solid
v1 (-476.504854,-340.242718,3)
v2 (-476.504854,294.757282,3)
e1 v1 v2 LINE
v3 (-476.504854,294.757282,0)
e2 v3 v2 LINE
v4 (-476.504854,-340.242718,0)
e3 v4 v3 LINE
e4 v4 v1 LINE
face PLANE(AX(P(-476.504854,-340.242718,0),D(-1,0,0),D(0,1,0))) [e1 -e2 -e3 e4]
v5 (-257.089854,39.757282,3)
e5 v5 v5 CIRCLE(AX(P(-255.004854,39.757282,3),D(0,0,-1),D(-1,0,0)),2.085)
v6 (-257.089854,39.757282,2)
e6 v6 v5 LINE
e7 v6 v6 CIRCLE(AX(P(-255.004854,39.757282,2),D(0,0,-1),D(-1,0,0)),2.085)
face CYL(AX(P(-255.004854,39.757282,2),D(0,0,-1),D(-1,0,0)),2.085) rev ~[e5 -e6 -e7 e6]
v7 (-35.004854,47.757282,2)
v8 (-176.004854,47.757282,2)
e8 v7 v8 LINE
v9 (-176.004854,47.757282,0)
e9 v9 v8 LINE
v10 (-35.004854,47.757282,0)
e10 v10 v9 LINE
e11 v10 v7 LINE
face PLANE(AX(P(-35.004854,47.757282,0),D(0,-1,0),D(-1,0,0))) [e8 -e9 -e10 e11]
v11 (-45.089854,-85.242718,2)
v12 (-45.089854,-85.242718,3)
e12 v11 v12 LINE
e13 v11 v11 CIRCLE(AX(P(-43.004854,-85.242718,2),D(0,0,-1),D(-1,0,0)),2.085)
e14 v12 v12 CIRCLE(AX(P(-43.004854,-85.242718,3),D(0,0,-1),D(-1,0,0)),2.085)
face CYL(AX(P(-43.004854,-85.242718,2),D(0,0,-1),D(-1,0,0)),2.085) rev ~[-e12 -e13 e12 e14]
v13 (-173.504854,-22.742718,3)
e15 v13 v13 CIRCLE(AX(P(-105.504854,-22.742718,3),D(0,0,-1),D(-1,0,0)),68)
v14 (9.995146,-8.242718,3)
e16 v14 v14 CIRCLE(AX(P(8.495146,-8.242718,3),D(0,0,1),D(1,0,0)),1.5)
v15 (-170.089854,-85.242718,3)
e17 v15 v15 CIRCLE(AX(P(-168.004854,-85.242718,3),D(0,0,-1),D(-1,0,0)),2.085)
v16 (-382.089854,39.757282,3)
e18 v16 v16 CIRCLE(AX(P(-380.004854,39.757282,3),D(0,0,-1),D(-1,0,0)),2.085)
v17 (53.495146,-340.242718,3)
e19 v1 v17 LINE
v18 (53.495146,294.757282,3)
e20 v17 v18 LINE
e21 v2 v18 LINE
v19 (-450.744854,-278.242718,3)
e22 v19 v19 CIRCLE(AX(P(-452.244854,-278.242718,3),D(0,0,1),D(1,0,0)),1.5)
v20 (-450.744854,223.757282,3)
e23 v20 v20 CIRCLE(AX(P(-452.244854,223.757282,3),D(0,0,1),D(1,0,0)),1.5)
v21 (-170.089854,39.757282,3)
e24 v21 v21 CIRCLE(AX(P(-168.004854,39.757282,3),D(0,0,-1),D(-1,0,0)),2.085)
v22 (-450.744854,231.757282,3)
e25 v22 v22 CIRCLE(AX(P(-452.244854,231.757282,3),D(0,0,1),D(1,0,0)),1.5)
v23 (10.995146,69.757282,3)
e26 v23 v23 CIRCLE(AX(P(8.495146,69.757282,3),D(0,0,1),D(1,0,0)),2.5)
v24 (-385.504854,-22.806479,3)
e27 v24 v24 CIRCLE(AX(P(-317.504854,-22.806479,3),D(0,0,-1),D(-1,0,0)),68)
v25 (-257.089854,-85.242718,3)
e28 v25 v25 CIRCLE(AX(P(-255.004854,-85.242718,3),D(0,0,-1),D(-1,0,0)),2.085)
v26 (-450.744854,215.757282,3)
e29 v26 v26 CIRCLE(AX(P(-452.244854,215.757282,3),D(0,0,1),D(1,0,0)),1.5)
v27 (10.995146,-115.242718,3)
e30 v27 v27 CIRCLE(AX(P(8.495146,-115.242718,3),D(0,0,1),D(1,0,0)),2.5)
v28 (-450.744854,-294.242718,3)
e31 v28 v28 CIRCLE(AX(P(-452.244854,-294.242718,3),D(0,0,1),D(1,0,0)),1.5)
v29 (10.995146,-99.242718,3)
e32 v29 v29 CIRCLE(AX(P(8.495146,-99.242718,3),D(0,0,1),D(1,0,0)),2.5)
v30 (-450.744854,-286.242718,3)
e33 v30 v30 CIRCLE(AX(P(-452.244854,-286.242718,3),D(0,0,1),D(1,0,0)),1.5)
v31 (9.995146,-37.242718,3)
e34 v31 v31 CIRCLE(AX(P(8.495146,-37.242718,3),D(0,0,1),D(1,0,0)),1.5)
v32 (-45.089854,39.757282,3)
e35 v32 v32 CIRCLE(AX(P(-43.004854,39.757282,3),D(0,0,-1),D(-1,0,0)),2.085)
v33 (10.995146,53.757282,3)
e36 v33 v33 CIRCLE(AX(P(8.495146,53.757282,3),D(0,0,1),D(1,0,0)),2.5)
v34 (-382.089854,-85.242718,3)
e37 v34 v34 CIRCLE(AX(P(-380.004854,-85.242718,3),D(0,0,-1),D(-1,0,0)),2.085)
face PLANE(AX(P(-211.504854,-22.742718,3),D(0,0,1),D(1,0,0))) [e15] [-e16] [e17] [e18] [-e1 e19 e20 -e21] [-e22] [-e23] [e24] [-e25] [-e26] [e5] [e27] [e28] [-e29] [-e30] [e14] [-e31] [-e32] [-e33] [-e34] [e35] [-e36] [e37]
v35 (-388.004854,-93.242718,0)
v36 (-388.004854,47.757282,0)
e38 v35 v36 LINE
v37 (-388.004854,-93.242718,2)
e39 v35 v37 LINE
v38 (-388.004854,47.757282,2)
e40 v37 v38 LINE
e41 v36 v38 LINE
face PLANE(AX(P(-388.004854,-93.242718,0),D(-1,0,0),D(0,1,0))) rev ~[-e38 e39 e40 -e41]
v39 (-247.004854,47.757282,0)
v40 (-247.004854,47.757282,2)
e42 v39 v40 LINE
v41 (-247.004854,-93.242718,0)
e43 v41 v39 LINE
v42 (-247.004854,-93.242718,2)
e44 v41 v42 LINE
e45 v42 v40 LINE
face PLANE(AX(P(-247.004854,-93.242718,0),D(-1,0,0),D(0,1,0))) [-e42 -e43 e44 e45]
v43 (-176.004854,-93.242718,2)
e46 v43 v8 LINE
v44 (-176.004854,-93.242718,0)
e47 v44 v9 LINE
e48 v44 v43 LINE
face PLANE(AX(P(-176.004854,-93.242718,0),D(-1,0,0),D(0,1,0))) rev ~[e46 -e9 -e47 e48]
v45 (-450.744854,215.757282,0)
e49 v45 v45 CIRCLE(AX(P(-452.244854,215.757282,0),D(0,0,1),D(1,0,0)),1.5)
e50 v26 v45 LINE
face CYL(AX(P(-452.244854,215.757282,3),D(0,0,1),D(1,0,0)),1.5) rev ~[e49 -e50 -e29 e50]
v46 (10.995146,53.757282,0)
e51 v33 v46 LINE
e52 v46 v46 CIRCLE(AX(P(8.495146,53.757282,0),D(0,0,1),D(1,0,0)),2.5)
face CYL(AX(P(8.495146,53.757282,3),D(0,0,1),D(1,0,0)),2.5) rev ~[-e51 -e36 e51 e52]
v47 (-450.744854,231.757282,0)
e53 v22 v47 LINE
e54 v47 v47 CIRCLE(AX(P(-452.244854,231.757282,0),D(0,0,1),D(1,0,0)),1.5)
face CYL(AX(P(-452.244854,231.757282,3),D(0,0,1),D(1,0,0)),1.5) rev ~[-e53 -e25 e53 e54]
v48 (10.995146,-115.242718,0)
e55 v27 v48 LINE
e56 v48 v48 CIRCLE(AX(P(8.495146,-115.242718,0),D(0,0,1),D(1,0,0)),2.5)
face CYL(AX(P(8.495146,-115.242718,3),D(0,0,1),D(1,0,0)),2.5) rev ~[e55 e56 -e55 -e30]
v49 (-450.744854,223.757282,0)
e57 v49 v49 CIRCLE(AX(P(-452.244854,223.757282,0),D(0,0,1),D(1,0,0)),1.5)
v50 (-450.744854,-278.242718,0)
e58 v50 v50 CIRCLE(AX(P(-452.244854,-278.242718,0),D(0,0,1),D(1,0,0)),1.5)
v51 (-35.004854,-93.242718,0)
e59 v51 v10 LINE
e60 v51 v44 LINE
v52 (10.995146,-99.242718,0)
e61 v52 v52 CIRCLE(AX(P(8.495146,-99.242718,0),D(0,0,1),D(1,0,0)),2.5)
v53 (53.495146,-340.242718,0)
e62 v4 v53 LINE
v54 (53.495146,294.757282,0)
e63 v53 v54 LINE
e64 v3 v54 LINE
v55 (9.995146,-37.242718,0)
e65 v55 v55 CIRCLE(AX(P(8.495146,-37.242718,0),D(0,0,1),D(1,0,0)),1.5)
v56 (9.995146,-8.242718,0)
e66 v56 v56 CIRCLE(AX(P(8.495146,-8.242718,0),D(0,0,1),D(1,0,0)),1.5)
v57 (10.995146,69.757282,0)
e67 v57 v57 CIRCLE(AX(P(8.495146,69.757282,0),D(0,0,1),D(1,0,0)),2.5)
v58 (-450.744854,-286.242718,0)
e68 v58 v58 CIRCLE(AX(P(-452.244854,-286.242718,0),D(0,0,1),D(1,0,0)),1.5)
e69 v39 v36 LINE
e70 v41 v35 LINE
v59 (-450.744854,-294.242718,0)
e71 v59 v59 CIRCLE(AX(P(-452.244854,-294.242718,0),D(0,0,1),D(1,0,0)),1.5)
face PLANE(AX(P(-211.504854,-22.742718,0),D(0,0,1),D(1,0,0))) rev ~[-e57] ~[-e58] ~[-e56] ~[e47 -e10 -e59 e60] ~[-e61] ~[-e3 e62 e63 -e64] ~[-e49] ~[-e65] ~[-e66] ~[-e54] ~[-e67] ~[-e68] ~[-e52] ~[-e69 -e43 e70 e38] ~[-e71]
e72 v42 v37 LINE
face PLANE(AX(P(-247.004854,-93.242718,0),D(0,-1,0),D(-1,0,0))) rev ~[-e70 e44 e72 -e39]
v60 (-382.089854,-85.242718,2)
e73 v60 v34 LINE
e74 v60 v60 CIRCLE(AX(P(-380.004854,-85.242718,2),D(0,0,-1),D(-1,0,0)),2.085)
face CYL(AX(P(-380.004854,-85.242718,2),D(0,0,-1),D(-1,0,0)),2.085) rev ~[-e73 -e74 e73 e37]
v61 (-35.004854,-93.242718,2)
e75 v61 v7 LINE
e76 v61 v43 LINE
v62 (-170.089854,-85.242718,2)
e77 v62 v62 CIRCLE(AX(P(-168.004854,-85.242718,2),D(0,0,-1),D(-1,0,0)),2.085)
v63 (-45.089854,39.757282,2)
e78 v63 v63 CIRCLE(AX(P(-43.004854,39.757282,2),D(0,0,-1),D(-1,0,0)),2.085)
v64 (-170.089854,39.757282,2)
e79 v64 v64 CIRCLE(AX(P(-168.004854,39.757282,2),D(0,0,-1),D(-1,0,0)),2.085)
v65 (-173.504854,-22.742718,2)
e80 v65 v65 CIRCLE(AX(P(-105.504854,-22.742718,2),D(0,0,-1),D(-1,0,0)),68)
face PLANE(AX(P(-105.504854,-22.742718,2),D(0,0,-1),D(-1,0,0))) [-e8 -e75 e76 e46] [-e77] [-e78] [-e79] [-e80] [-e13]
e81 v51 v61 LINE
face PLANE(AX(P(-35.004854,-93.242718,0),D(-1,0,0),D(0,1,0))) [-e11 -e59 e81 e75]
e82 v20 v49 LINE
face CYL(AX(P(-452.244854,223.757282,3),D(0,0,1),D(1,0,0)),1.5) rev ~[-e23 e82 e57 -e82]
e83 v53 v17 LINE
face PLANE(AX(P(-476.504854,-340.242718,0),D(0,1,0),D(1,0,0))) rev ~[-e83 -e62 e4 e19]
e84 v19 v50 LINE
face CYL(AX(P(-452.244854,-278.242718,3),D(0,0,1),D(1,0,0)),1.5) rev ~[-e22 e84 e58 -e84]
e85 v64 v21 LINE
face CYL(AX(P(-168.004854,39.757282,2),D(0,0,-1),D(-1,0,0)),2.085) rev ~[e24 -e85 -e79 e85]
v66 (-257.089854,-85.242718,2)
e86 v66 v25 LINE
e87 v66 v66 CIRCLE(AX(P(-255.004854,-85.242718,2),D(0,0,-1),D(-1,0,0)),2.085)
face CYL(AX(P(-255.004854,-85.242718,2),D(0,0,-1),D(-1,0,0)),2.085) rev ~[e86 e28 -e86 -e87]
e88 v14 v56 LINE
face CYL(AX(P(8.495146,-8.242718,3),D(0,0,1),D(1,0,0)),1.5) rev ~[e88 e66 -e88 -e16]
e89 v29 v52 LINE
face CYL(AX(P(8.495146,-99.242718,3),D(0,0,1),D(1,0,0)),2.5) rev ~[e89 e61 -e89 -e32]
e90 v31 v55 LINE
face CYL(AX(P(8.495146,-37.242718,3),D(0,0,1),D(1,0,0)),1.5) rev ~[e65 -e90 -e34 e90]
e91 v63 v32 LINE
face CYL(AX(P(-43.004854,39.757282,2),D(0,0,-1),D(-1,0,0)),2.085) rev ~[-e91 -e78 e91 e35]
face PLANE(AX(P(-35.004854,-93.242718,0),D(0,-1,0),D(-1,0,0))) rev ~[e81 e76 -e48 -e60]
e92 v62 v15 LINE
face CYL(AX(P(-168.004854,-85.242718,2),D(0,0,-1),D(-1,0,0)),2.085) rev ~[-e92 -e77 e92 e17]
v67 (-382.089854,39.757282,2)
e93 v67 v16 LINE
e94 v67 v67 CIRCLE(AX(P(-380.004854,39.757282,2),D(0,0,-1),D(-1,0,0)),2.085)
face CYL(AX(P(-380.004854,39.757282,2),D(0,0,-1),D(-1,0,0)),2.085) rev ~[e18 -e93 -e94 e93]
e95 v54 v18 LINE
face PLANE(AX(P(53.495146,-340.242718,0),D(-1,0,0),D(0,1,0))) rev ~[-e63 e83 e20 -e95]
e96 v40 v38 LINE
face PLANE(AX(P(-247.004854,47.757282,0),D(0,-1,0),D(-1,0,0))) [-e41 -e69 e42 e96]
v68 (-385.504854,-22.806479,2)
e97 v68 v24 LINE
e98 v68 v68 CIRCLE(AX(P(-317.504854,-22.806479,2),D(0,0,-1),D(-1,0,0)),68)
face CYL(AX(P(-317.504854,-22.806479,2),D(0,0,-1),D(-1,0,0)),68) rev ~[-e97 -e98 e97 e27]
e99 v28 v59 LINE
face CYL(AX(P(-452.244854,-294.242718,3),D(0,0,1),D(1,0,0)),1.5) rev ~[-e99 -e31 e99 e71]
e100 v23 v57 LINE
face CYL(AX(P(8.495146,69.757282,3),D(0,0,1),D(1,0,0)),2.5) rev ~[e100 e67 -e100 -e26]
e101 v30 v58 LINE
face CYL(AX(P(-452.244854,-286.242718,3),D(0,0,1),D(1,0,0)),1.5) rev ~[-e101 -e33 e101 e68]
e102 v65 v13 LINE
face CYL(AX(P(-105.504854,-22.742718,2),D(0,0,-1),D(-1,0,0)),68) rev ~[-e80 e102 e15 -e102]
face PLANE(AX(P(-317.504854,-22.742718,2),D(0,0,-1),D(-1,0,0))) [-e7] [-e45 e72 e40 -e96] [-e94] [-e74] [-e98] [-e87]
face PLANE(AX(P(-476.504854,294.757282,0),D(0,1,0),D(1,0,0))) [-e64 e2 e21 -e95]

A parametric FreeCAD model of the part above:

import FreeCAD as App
import Part
import Sketcher

V = App.Vector
Q = App.Units.Quantity

doc = App.newDocument("Part")
body = doc.addObject("PartDesign::Body", "Body")

# Sketch on XY plane
sketch1 = body.newObject("Sketcher::SketchObject", "Sketch")
sketch1.AttachmentSupport = (doc.getObject("XY_Plane"), [""])
sketch1.MapMode = "FlatFace"
sketch1.addGeometry([
    Part.LineSegment(V(-476.504854, 294.757282, 0), V(-476.504854, -340.242718, 0)),
    Part.LineSegment(V(-476.504854, -340.242718, 0), V(53.495146, -340.242718, 0)),
    Part.LineSegment(V(53.495146, -340.242718, 0), V(53.495146, 294.757282, 0)),
    Part.LineSegment(V(53.495146, 294.757282, 0), V(-476.504854, 294.757282, 0)),
], False)
sketch1.addConstraint([
    Sketcher.Constraint("Coincident", 0, 2, 1, 1),
    Sketcher.Constraint("Coincident", 1, 2, 2, 1),
    Sketcher.Constraint("Coincident", 2, 2, 3, 1),
    Sketcher.Constraint("Coincident", 3, 2, 0, 1),
    Sketcher.Constraint("Vertical", 0),
    Sketcher.Constraint("Horizontal", 1),
    Sketcher.Constraint("Vertical", 2),
    Sketcher.Constraint("Horizontal", 3),
    Sketcher.Constraint("DistanceX", 1, 1, 1, 2, Q("530 mm")),
    Sketcher.Constraint("DistanceY", 0, 2, 0, 1, Q("635 mm")),
    Sketcher.Constraint("DistanceY", 0, 2, -1, 1, Q("340.242718 mm")),
    Sketcher.Constraint("DistanceX", 0, 2, -1, 1, Q("476.504854 mm")),
])
pad1 = body.newObject("PartDesign::Pad", "Pad")
pad1.Profile = sketch1
pad1.Length = 3

# Sketch on XY plane
sketch2 = body.newObject("Sketcher::SketchObject", "Sketch001")
sketch2.AttachmentSupport = (doc.getObject("XY_Plane"), [""])
sketch2.MapMode = "FlatFace"
sketch2.AttachmentOffset = App.Placement(V(0, 0, 3), App.Rotation())
sketch2.addGeometry([
    Part.Circle(V(-452.244854, 231.757282, 0), V(0, 0, 1), 1.5),  # 0
    Part.Circle(V(-452.244854, 223.757282, 0), V(0, 0, 1), 1.5),  # 1
    Part.Circle(V(-452.244854, 215.757282, 0), V(0, 0, 1), 1.5),  # 2
    Part.Circle(V(-452.244854, -278.242718, 0), V(0, 0, 1), 1.5),  # 3
    Part.Circle(V(-452.244854, -286.242718, 0), V(0, 0, 1), 1.5),  # 4
    Part.Circle(V(-452.244854, -294.242718, 0), V(0, 0, 1), 1.5),  # 5
], False)
sketch2.addConstraint([
    Sketcher.Constraint("Equal", 0, 1),
    Sketcher.Constraint("Equal", 1, 2),
    Sketcher.Constraint("Equal", 2, 3),
    Sketcher.Constraint("Equal", 3, 4),
    Sketcher.Constraint("Equal", 4, 5),
    Sketcher.Constraint("Vertical", 0, 3, 1, 3),
    Sketcher.Constraint("Vertical", 1, 3, 2, 3),
    Sketcher.Constraint("Vertical", 2, 3, 3, 3),
    Sketcher.Constraint("Vertical", 3, 3, 4, 3),
    Sketcher.Constraint("Vertical", 4, 3, 5, 3),
    Sketcher.Constraint("Diameter", 0, Q("3 mm")),
    Sketcher.Constraint("DistanceY", 1, 3, 0, 3, Q("8 mm")),
    Sketcher.Constraint("DistanceY", 2, 3, 1, 3, Q("8 mm")),
    Sketcher.Constraint("DistanceY", 3, 3, 2, 3, Q("494 mm")),
    Sketcher.Constraint("DistanceY", 4, 3, 3, 3, Q("8 mm")),
    Sketcher.Constraint("DistanceY", 5, 3, 4, 3, Q("8 mm")),
    Sketcher.Constraint("DistanceY", -1, 1, 0, 3, Q("231.757282 mm")),
    Sketcher.Constraint("DistanceX", 0, 3, -1, 1, Q("452.244854 mm")),
])
pocket1 = body.newObject("PartDesign::Pocket", "Pocket")
pocket1.Profile = sketch2
pocket1.Type = "ThroughAll"

# Sketch on XY plane
sketch3 = body.newObject("Sketcher::SketchObject", "Sketch002")
sketch3.AttachmentSupport = (doc.getObject("XY_Plane"), [""])
sketch3.MapMode = "FlatFace"
sketch3.AttachmentOffset = App.Placement(V(0, 0, 3), App.Rotation())
sketch3.addGeometry([
    Part.Circle(V(8.495146, 69.757282, 0), V(0, 0, 1), 2.5),  # 0
    Part.Circle(V(8.495146, 53.757282, 0), V(0, 0, 1), 2.5),  # 1
    Part.Circle(V(8.495146, -99.242718, 0), V(0, 0, 1), 2.5),  # 2
    Part.Circle(V(8.495146, -115.242718, 0), V(0, 0, 1), 2.5),  # 3
    Part.Circle(V(8.495146, -8.242718, 0), V(0, 0, 1), 1.5),  # 4
    Part.Circle(V(8.495146, -37.242718, 0), V(0, 0, 1), 1.5),  # 5
], False)
sketch3.addConstraint([
    Sketcher.Constraint("Equal", 0, 1),
    Sketcher.Constraint("Equal", 1, 2),
    Sketcher.Constraint("Equal", 2, 3),
    Sketcher.Constraint("Equal", 4, 5),
    Sketcher.Constraint("Vertical", 0, 3, 1, 3),
    Sketcher.Constraint("Vertical", 1, 3, 2, 3),
    Sketcher.Constraint("Vertical", 2, 3, 3, 3),
    Sketcher.Constraint("Vertical", 3, 3, 4, 3),
    Sketcher.Constraint("Vertical", 4, 3, 5, 3),
    Sketcher.Constraint("Diameter", 0, Q("5 mm")),
    Sketcher.Constraint("Diameter", 4, Q("3 mm")),
    Sketcher.Constraint("DistanceY", 1, 3, 0, 3, Q("16 mm")),
    Sketcher.Constraint("DistanceY", 2, 3, 1, 3, Q("153 mm")),
    Sketcher.Constraint("DistanceY", 3, 3, 2, 3, Q("16 mm")),
    Sketcher.Constraint("DistanceY", 4, 3, 1, 3, Q("62 mm")),
    Sketcher.Constraint("DistanceY", 5, 3, 4, 3, Q("29 mm")),
    Sketcher.Constraint("DistanceY", -1, 1, 0, 3, Q("69.757282 mm")),
    Sketcher.Constraint("DistanceX", -1, 1, 0, 3, Q("8.495146 mm")),
])
pocket2 = body.newObject("PartDesign::Pocket", "Pocket001")
pocket2.Profile = sketch3
pocket2.Type = "ThroughAll"

# Sketch on XY plane
sketch4 = body.newObject("Sketcher::SketchObject", "Sketch003")
sketch4.AttachmentSupport = (doc.getObject("XY_Plane"), [""])
sketch4.MapMode = "FlatFace"
sketch4.addGeometry([
    Part.LineSegment(V(-35.004854, 47.757282, 0), V(-35.004854, -93.242718, 0)),  # 0
    Part.LineSegment(V(-35.004854, -93.242718, 0), V(-176.004854, -93.242718, 0)),  # 1
    Part.LineSegment(V(-176.004854, -93.242718, 0), V(-176.004854, 47.757282, 0)),  # 2
    Part.LineSegment(V(-176.004854, 47.757282, 0), V(-35.004854, 47.757282, 0)),  # 3
    Part.LineSegment(V(-247.004854, 47.757282, 0), V(-247.004854, -93.242718, 0)),  # 4
    Part.LineSegment(V(-247.004854, -93.242718, 0), V(-388.004854, -93.242718, 0)),  # 5
    Part.LineSegment(V(-388.004854, -93.242718, 0), V(-388.004854, 47.757282, 0)),  # 6
    Part.LineSegment(V(-388.004854, 47.757282, 0), V(-247.004854, 47.757282, 0)),  # 7
], False)
sketch4.addConstraint([
    Sketcher.Constraint("Coincident", 0, 2, 1, 1),
    Sketcher.Constraint("Coincident", 1, 2, 2, 1),
    Sketcher.Constraint("Coincident", 2, 2, 3, 1),
    Sketcher.Constraint("Coincident", 3, 2, 0, 1),
    Sketcher.Constraint("Coincident", 4, 2, 5, 1),
    Sketcher.Constraint("Coincident", 5, 2, 6, 1),
    Sketcher.Constraint("Coincident", 6, 2, 7, 1),
    Sketcher.Constraint("Coincident", 7, 2, 4, 1),
    Sketcher.Constraint("Vertical", 0),
    Sketcher.Constraint("Horizontal", 1),
    Sketcher.Constraint("Vertical", 2),
    Sketcher.Constraint("Horizontal", 3),
    Sketcher.Constraint("Vertical", 4),
    Sketcher.Constraint("Horizontal", 5),
    Sketcher.Constraint("Vertical", 6),
    Sketcher.Constraint("Horizontal", 7),
    Sketcher.Constraint("Horizontal", 1, 2, 4, 2),
    Sketcher.Constraint("Horizontal", 3, 2, 6, 2),
    Sketcher.Constraint("Equal", 3, 5),
    Sketcher.Constraint("Equal", 7, 0),
    Sketcher.Constraint("DistanceX", 1, 2, 1, 1, Q("141 mm")),
    Sketcher.Constraint("DistanceX", 4, 2, 1, 2, Q("71 mm")),
    Sketcher.Constraint("DistanceY", 0, 2, -1, 1, Q("93.242718 mm")),
    Sketcher.Constraint("DistanceX", 0, 2, -1, 1, Q("35.004854 mm")),
])
pocket3 = body.newObject("PartDesign::Pocket", "Pocket002")
pocket3.Profile = sketch4
pocket3.Length = 2
pocket3.Reversed = True

# Sketch on XY plane
sketch5 = body.newObject("Sketcher::SketchObject", "Sketch004")
sketch5.AttachmentSupport = (doc.getObject("XY_Plane"), [""])
sketch5.MapMode = "FlatFace"
sketch5.AttachmentOffset = App.Placement(V(0, 0, 2), App.Rotation())
sketch5.addGeometry([
    Part.Circle(V(-43.004854, 39.757282, 0), V(0, 0, 1), 2.085),  # 0
    Part.Circle(V(-168.004854, 39.757282, 0), V(0, 0, 1), 2.085),  # 1
    Part.Circle(V(-43.004854, -85.242718, 0), V(0, 0, 1), 2.085),  # 2
    Part.Circle(V(-168.004854, -85.242718, 0), V(0, 0, 1), 2.085),  # 3
    Part.Circle(V(-105.504854, -22.742718, 0), V(0, 0, 1), 68),  # 4
], False)
sketch5.addConstraint([
    Sketcher.Constraint("Equal", 0, 1),
    Sketcher.Constraint("Equal", 1, 2),
    Sketcher.Constraint("Equal", 2, 3),
    Sketcher.Constraint("Horizontal", 0, 3, 1, 3),
    Sketcher.Constraint("Horizontal", 2, 3, 3, 3),
    Sketcher.Constraint("Vertical", 0, 3, 2, 3),
    Sketcher.Constraint("Vertical", 1, 3, 3, 3),
    Sketcher.Constraint("Diameter", 4, Q("136 mm")),
    Sketcher.Constraint("Diameter", 0, Q("4.17 mm")),
    Sketcher.Constraint("DistanceX", 1, 3, 0, 3, Q("125 mm")),
    Sketcher.Constraint("DistanceY", 2, 3, 0, 3, Q("125 mm")),
    Sketcher.Constraint("DistanceX", 1, 3, 4, 3, Q("62.5 mm")),
    Sketcher.Constraint("DistanceY", 4, 3, 1, 3, Q("62.5 mm")),
    Sketcher.Constraint("DistanceY", -1, 1, 0, 3, Q("39.757282 mm")),
    Sketcher.Constraint("DistanceX", 0, 3, -1, 1, Q("43.004854 mm")),
])
pocket4 = body.newObject("PartDesign::Pocket", "Pocket003")
pocket4.Profile = sketch5
pocket4.Type = "ThroughAll"
pocket4.Reversed = True

# Sketch on XY plane
sketch6 = body.newObject("Sketcher::SketchObject", "Sketch005")
sketch6.AttachmentSupport = (doc.getObject("XY_Plane"), [""])
sketch6.MapMode = "FlatFace"
sketch6.AttachmentOffset = App.Placement(V(0, 0, 2), App.Rotation())
sketch6.addGeometry([
    Part.Circle(V(-255.004854, 39.757282, 0), V(0, 0, 1), 2.085),  # 0
    Part.Circle(V(-380.004854, 39.757282, 0), V(0, 0, 1), 2.085),  # 1
    Part.Circle(V(-255.004854, -85.242718, 0), V(0, 0, 1), 2.085),  # 2
    Part.Circle(V(-380.004854, -85.242718, 0), V(0, 0, 1), 2.085),  # 3
    Part.Circle(V(-317.504854, -22.806479, 0), V(0, 0, 1), 68),  # 4
], False)
sketch6.addConstraint([
    Sketcher.Constraint("Equal", 0, 1),
    Sketcher.Constraint("Equal", 1, 2),
    Sketcher.Constraint("Equal", 2, 3),
    Sketcher.Constraint("Horizontal", 0, 3, 1, 3),
    Sketcher.Constraint("Horizontal", 2, 3, 3, 3),
    Sketcher.Constraint("Vertical", 0, 3, 2, 3),
    Sketcher.Constraint("Vertical", 1, 3, 3, 3),
    Sketcher.Constraint("Diameter", 4, Q("136 mm")),
    Sketcher.Constraint("Diameter", 0, Q("4.17 mm")),
    Sketcher.Constraint("DistanceX", 1, 3, 0, 3, Q("125 mm")),
    Sketcher.Constraint("DistanceY", 2, 3, 0, 3, Q("125 mm")),
    Sketcher.Constraint("DistanceX", 4, 3, 2, 3, Q("62.5 mm")),
    Sketcher.Constraint("DistanceY", -1, 1, 0, 3, Q("39.757282 mm")),
    Sketcher.Constraint("DistanceY", 4, 3, -1, 1, Q("22.806479 mm")),
    Sketcher.Constraint("DistanceX", 0, 3, -1, 1, Q("255.004854 mm")),
])
pocket5 = body.newObject("PartDesign::Pocket", "Pocket004")
pocket5.Profile = sketch6
pocket5.Type = "ThroughAll"
pocket5.Reversed = True

doc.recompute()
